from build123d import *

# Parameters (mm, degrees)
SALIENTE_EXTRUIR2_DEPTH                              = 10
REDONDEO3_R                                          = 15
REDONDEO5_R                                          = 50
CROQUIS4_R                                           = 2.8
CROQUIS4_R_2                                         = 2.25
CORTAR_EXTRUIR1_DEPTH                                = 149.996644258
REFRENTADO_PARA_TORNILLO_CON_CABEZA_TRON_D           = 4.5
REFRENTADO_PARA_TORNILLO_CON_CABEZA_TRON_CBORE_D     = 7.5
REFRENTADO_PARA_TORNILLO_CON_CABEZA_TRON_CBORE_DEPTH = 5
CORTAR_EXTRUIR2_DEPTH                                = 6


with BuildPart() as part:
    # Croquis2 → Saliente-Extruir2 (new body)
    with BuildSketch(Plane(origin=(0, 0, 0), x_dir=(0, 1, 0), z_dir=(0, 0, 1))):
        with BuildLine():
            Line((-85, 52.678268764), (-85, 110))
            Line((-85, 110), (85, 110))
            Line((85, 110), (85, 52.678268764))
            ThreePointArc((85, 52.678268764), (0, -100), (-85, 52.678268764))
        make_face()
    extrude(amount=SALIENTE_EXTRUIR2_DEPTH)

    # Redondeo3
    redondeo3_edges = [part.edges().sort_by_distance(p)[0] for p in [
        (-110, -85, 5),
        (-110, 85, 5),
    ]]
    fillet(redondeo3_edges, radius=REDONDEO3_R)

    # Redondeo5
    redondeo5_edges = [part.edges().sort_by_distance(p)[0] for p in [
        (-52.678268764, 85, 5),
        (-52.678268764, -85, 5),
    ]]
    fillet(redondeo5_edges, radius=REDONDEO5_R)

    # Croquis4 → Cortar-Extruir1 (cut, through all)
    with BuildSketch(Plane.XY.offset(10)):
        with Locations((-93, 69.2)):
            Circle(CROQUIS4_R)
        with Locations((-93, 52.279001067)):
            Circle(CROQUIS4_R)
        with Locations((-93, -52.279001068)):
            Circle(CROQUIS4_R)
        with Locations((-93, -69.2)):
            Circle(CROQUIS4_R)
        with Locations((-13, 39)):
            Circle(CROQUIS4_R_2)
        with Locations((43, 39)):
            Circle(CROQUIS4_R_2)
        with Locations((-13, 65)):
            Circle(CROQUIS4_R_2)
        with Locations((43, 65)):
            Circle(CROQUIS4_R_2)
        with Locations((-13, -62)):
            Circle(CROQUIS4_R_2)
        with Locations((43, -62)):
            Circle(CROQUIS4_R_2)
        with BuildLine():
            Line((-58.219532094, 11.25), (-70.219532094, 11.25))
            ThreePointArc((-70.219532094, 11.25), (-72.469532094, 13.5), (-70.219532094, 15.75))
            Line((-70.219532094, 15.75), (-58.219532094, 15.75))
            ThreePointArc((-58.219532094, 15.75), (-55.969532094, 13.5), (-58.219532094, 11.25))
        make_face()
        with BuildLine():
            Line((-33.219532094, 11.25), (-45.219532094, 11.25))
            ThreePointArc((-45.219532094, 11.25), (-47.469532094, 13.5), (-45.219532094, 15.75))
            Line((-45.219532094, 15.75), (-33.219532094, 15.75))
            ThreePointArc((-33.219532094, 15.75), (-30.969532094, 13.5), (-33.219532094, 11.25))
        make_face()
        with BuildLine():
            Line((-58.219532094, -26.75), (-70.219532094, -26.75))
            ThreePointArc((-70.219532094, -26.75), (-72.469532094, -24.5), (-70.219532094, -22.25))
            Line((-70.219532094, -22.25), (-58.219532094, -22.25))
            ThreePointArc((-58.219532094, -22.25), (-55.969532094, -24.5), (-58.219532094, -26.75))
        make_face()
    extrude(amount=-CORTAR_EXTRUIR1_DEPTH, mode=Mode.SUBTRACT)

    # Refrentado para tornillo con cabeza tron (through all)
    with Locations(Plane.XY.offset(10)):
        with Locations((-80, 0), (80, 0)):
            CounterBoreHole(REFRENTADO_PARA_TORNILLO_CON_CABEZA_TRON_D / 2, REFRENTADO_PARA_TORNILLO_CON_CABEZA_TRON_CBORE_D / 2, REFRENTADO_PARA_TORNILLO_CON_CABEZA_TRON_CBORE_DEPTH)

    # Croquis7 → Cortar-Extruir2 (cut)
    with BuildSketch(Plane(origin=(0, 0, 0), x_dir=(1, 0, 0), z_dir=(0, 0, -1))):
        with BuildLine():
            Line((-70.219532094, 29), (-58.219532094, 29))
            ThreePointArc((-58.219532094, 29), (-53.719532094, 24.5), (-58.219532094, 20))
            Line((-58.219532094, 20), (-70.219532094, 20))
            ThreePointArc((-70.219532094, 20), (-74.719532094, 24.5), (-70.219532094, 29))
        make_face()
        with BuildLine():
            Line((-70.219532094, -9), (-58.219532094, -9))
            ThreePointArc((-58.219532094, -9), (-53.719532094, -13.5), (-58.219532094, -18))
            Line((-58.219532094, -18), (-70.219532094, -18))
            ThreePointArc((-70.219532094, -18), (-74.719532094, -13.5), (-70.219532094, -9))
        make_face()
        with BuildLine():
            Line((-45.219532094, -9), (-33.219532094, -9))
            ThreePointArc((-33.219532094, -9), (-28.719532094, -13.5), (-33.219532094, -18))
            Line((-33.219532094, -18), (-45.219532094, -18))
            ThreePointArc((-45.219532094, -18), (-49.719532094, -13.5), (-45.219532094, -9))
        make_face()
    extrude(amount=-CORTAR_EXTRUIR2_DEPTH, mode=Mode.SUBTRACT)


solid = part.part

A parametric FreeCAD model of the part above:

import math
import FreeCAD as App
import Part
import Sketcher

V = App.Vector
Q = App.Units.Quantity


def edges_at(feature, points):
    """Names of the edges that pass closest to the given points."""
    edges = feature.Shape.Edges
    near = lambda p: min(range(len(edges)), key=lambda i: edges[i].distToShape(Part.Vertex(*p))[0])
    return sorted({f"Edge{near(p) + 1}" for p in points})

doc = App.newDocument("Part")
body = doc.addObject("PartDesign::Body", "Body")

sketch1 = doc.addObject("Sketcher::SketchObject", "Sketch")
body.addObject(sketch1)
sketch1.AttachmentSupport = (doc.XY_Plane, [""])
sketch1.MapMode = "FlatFace"
sketch1.addGeometry([
    Part.LineSegment(V(-110, -85, 0), V(-52.678269, -85, 0)),
    Part.ArcOfCircle(Part.Circle(V(0, 0, 0), V(0, 0, 1), 100), math.radians(-121.788331), math.radians(121.788331)),
    Part.LineSegment(V(-52.678269, 85, 0), V(-110, 85, 0)),
    Part.LineSegment(V(-110, 85, 0), V(-110, -85, 0)),
], False)
sketch1.addConstraint([
    Sketcher.Constraint("Coincident", 0, 2, 1, 1),
    Sketcher.Constraint("Coincident", 1, 2, 2, 1),
    Sketcher.Constraint("Coincident", 2, 2, 3, 1),
    Sketcher.Constraint("Coincident", 3, 2, 0, 1),
    Sketcher.Constraint("Horizontal", 0),
    Sketcher.Constraint("Horizontal", 2),
    Sketcher.Constraint("Vertical", 3),
    Sketcher.Constraint("Coincident", 1, 3, -1, 1),
    Sketcher.Constraint("Vertical", 0, 2, 1, 2),
    Sketcher.Constraint("Radius", 1, Q("100 mm")),
    Sketcher.Constraint("DistanceY", 3, 2, 3, 1, Q("170 mm")),
    Sketcher.Constraint("DistanceX", 2, 2, -1, 1, Q("110 mm")),
])
pad1 = doc.addObject("PartDesign::Pad", "Pad")
body.addObject(pad1)
pad1.Profile = sketch1
pad1.Length = 10
doc.recompute()

fillet = doc.addObject("PartDesign::Fillet", "Fillet")
body.addObject(fillet)
fillet.Base = (pad1, edges_at(pad1, [(-110, -85, 5), (-110, 85, 5)]))
fillet.Radius = 15
doc.recompute()

fillet2 = doc.addObject("PartDesign::Fillet", "Fillet001")
body.addObject(fillet2)
fillet2.Base = (fillet, edges_at(fillet, [(-52.678, 85, 5), (-52.678, -85, 5)]))
fillet2.Radius = 50

sketch2 = doc.addObject("Sketcher::SketchObject", "Sketch001")
body.addObject(sketch2)
sketch2.AttachmentSupport = (doc.XY_Plane, [""])
sketch2.MapMode = "FlatFace"
sketch2.AttachmentOffset = App.Placement(V(0, 0, 10), App.Rotation())
sketch2.addGeometry([
    Part.Circle(V(-93, 69.2, 0), V(0, 0, 1), 2.8),
    Part.Circle(V(-93, 52.279001, 0), V(0, 0, 1), 2.8),
    Part.Circle(V(-93, -52.279001, 0), V(0, 0, 1), 2.8),
    Part.Circle(V(-93, -69.2, 0), V(0, 0, 1), 2.8),
    Part.Circle(V(-13, 39, 0), V(0, 0, 1), 2.25),
    Part.Circle(V(43, 39, 0), V(0, 0, 1), 2.25),
    Part.Circle(V(-13, 65, 0), V(0, 0, 1), 2.25),
    Part.Circle(V(43, 65, 0), V(0, 0, 1), 2.25),
    Part.Circle(V(-13, -62, 0), V(0, 0, 1), 2.25),
    Part.Circle(V(43, -62, 0), V(0, 0, 1), 2.25),
    Part.LineSegment(V(-70.219532, 11.25, 0), V(-58.219532, 11.25, 0)),
    Part.ArcOfCircle(Part.Circle(V(-58.219532, 13.5, 0), V(0, 0, 1), 2.25), math.radians(-90), math.radians(90)),
    Part.LineSegment(V(-58.219532, 15.75, 0), V(-70.219532, 15.75, 0)),
    Part.ArcOfCircle(Part.Circle(V(-70.219532, 13.5, 0), V(0, 0, 1), 2.25), math.radians(90), math.radians(270)),
    Part.LineSegment(V(-45.219532, 11.25, 0), V(-33.219532, 11.25, 0)),
    Part.ArcOfCircle(Part.Circle(V(-33.219532, 13.5, 0), V(0, 0, 1), 2.25), math.radians(-90), math.radians(90)),
    Part.LineSegment(V(-33.219532, 15.75, 0), V(-45.219532, 15.75, 0)),
    Part.ArcOfCircle(Part.Circle(V(-45.219532, 13.5, 0), V(0, 0, 1), 2.25), math.radians(90), math.radians(270)),
    Part.LineSegment(V(-70.219532, -26.75, 0), V(-58.219532, -26.75, 0)),
    Part.ArcOfCircle(Part.Circle(V(-58.219532, -24.5, 0), V(0, 0, 1), 2.25), math.radians(-90), math.radians(90)),
    Part.LineSegment(V(-58.219532, -22.25, 0), V(-70.219532, -22.25, 0)),
    Part.ArcOfCircle(Part.Circle(V(-70.219532, -24.5, 0), V(0, 0, 1), 2.25), math.radians(90), math.radians(270)),
], False)
sketch2.addConstraint([
    Sketcher.Constraint("Tangent", 10, 2, 11, 1),
    Sketcher.Constraint("Tangent", 11, 2, 12, 1),
    Sketcher.Constraint("Tangent", 12, 2, 13, 1),
    Sketcher.Constraint("Tangent", 13, 2, 10, 1),
    Sketcher.Constraint("Tangent", 14, 2, 15, 1),
    Sketcher.Constraint("Tangent", 15, 2, 16, 1),
    Sketcher.Constraint("Tangent", 16, 2, 17, 1),
    Sketcher.Constraint("Tangent", 17, 2, 14, 1),
    Sketcher.Constraint("Tangent", 18, 2, 19, 1),
    Sketcher.Constraint("Tangent", 19, 2, 20, 1),
    Sketcher.Constraint("Tangent", 20, 2, 21, 1),
    Sketcher.Constraint("Tangent", 21, 2, 18, 1),
    Sketcher.Constraint("Horizontal", 10),
    Sketcher.Constraint("Horizontal", 12),
    Sketcher.Constraint("Horizontal", 14),
    Sketcher.Constraint("Horizontal", 16),
    Sketcher.Constraint("Horizontal", 18),
    Sketcher.Constraint("Horizontal", 20),
    Sketcher.Constraint("Equal", 0, 1),
    Sketcher.Constraint("Equal", 1, 2),
    Sketcher.Constraint("Equal", 2, 3),
    Sketcher.Constraint("Equal", 4, 5),
    Sketcher.Constraint("Equal", 5, 6),
    Sketcher.Constraint("Equal", 6, 7),
    Sketcher.Constraint("Equal", 7, 8),
    Sketcher.Constraint("Equal", 8, 9),
    Sketcher.Constraint("Equal", 9, 11),
    Sketcher.Constraint("Equal", 13, 15),
    Sketcher.Constraint("Equal", 17, 19),
    Sketcher.Constraint("Symmetric", 1, 3, 2, 3, -1),
    Sketcher.Constraint("Symmetric", 0, 3, 3, 3, -1),
    Sketcher.Constraint("Horizontal", 4, 3, 5, 3),
    Sketcher.Constraint("Horizontal", 6, 3, 7, 3),
    Sketcher.Constraint("Horizontal", 8, 3, 9, 3),
    Sketcher.Constraint("Horizontal", 13, 3, 15, 3),
    Sketcher.Constraint("Vertical", 0, 3, 1, 3),
    Sketcher.Constraint("Vertical", 4, 3, 6, 3),
    Sketcher.Constraint("Vertical", 5, 3, 7, 3),
    Sketcher.Constraint("Vertical", 6, 3, 8, 3),
    Sketcher.Constraint("Vertical", 7, 3, 9, 3),
    Sketcher.Constraint("Vertical", 11, 3, 19, 3),
    Sketcher.Constraint("Vertical", 13, 3, 21, 3),
    Sketcher.Constraint("Equal", 12, 14),
    Sketcher.Constraint("Diameter", 0, Q("5.6 mm")),
    Sketcher.Constraint("Diameter", 4, Q("4.5 mm")),
    Sketcher.Constraint("DistanceX", 10, 1, 10, 2, Q("12 mm")),
    Sketcher.Constraint("DistanceX", 0, 3, -1, 1, Q("93 mm")),
    Sketcher.Constraint("DistanceX", 4, 3, -1, 1, Q("13 mm")),
    Sketcher.Constraint("DistanceY", -1, 1, 4, 3, Q("39 mm")),
    Sketcher.Constraint("DistanceX", -1, 1, 5, 3, Q("43 mm")),
    Sketcher.Constraint("DistanceY", -1, 1, 6, 3, Q("65 mm")),
    Sketcher.Constraint("DistanceY", 8, 3, -1, 1, Q("62 mm")),
    Sketcher.Constraint("DistanceX", 11, 3, 15, 3, Q("25 mm")),
    Sketcher.Constraint("DistanceY", 19, 3, 11, 3, Q("38 mm")),
    Sketcher.Constraint("DistanceY", -1, 1, 0, 3, Q("69.2 mm")),
    Sketcher.Constraint("DistanceY", -1, 1, 11, 3, Q("13.5 mm")),
    Sketcher.Constraint("DistanceY", -1, 1, 1, 3, Q("52.279001 mm")),
    Sketcher.Constraint("DistanceX", 11, 3, -1, 1, Q("58.219532 mm")),
])
pocket1 = doc.addObject("PartDesign::Pocket", "Pocket")
body.addObject(pocket1)
pocket1.Profile = sketch2
pocket1.Type = "ThroughAll"

sketch3 = doc.addObject("Sketcher::SketchObject", "Sketch002")
body.addObject(sketch3)
sketch3.AttachmentSupport = (doc.XY_Plane, [""])
sketch3.MapMode = "FlatFace"
sketch3.AttachmentOffset = App.Placement(V(0, 0, 10), App.Rotation())
sketch3.addGeometry([
    Part.Circle(V(-80, 0, 0), V(0, 0, 1), 2.25),
    Part.Circle(V(80, 0, 0), V(0, 0, 1), 2.25),
], False)
sketch3.addConstraint([
    Sketcher.Constraint("Equal", 0, 1),
    Sketcher.Constraint("Symmetric", 0, 3, 1, 3, -1, 1),
    Sketcher.Constraint("PointOnObject", 0, 3, -1),
    Sketcher.Constraint("Diameter", 0, Q("4.5 mm")),
    Sketcher.Constraint("DistanceX", 0, 3, -1, 1, Q("80 mm")),
])
doc.recompute()
hole = doc.addObject("PartDesign::Hole", "Hole")
body.addObject(hole)
hole.Profile = sketch3
hole.ThreadType = "None"
hole.Diameter = 4.5
hole.DepthType = "ThroughAll"
hole.HoleCutType = "Counterbore"
hole.HoleCutDiameter = 7.5
hole.HoleCutDepth = 5

sketch4 = doc.addObject("Sketcher::SketchObject", "Sketch003")
body.addObject(sketch4)
sketch4.AttachmentSupport = (doc.XY_Plane, [""])
sketch4.MapMode = "FlatFace"
sketch4.addGeometry([
    Part.LineSegment(V(-58.219532, -29, 0), V(-70.219532, -29, 0)),
    Part.ArcOfCircle(Part.Circle(V(-70.219532, -24.5, 0), V(0, 0, 1), 4.5), math.radians(90), math.radians(270)),
    Part.LineSegment(V(-70.219532, -20, 0), V(-58.219532, -20, 0)),
    Part.ArcOfCircle(Part.Circle(V(-58.219532, -24.5, 0), V(0, 0, 1), 4.5), math.radians(-90), math.radians(90)),
    Part.LineSegment(V(-58.219532, 9, 0), V(-70.219532, 9, 0)),
    Part.ArcOfCircle(Part.Circle(V(-70.219532, 13.5, 0), V(0, 0, 1), 4.5), math.radians(90), math.radians(270)),
    Part.LineSegment(V(-70.219532, 18, 0), V(-58.219532, 18, 0)),
    Part.ArcOfCircle(Part.Circle(V(-58.219532, 13.5, 0), V(0, 0, 1), 4.5), math.radians(-90), math.radians(90)),
    Part.LineSegment(V(-33.219532, 9, 0), V(-45.219532, 9, 0)),
    Part.ArcOfCircle(Part.Circle(V(-45.219532, 13.5, 0), V(0, 0, 1), 4.5), math.radians(90), math.radians(270)),
    Part.LineSegment(V(-45.219532, 18, 0), V(-33.219532, 18, 0)),
    Part.ArcOfCircle(Part.Circle(V(-33.219532, 13.5, 0), V(0, 0, 1), 4.5), math.radians(-90), math.radians(90)),
], False)
sketch4.addConstraint([
    Sketcher.Constraint("Tangent", 0, 2, 1, 2),
    Sketcher.Constraint("Tangent", 1, 1, 2, 1),
    Sketcher.Constraint("Tangent", 2, 2, 3, 2),
    Sketcher.Constraint("Tangent", 3, 1, 0, 1),
    Sketcher.Constraint("Tangent", 4, 2, 5, 2),
    Sketcher.Constraint("Tangent", 5, 1, 6, 1),
    Sketcher.Constraint("Tangent", 6, 2, 7, 2),
    Sketcher.Constraint("Tangent", 7, 1, 4, 1),
    Sketcher.Constraint("Tangent", 8, 2, 9, 2),
    Sketcher.Constraint("Tangent", 9, 1, 10, 1),
    Sketcher.Constraint("Tangent", 10, 2, 11, 2),
    Sketcher.Constraint("Tangent", 11, 1, 8, 1),
    Sketcher.Constraint("Horizontal", 0),
    Sketcher.Constraint("Horizontal", 2),
    Sketcher.Constraint("Horizontal", 4),
    Sketcher.Constraint("Horizontal", 6),
    Sketcher.Constraint("Horizontal", 8),
    Sketcher.Constraint("Horizontal", 10),
    Sketcher.Constraint("Equal", 3, 5),
    Sketcher.Constraint("Equal", 7, 9),
    Sketcher.Constraint("Horizontal", 7, 3, 9, 3),
    Sketcher.Constraint("Vertical", 1, 3, 5, 3),
    Sketcher.Constraint("Vertical", 3, 3, 7, 3),
    Sketcher.Constraint("Equal", 6, 8),
    Sketcher.Constraint("Radius", 1, Q("4.5 mm")),
    Sketcher.Constraint("DistanceX", 0, 2, 0, 1, Q("12 mm")),
    Sketcher.Constraint("DistanceY", 0, 2, -1, 1, Q("29 mm")),
    Sketcher.Constraint("DistanceY", -1, 1, 4, 2, Q("9 mm")),
    Sketcher.Constraint("DistanceX", 7, 3, 9, 3, Q("13 mm")),
    Sketcher.Constraint("DistanceX", 1, 3, -1, 1, Q("70.219532 mm")),
])
pocket2 = doc.addObject("PartDesign::Pocket", "Pocket001")
body.addObject(pocket2)
pocket2.Profile = sketch4
pocket2.Length = 6
pocket2.Reversed = True

doc.recompute()
